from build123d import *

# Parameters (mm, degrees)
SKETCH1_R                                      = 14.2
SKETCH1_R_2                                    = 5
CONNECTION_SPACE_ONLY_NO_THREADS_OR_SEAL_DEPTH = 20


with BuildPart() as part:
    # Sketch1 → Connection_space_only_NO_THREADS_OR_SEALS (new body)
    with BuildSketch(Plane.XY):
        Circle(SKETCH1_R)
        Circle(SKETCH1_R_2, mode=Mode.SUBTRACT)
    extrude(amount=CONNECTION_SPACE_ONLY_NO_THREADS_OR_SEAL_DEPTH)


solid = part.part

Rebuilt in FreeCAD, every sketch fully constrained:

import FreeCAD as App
import Part
import Sketcher
from FreeCAD import Vector

doc = App.newDocument("Part")
body = doc.addObject("PartDesign::Body", "Body")

sketch1 = body.newObject("Sketcher::SketchObject", "Sketch")
sketch1.AttachmentSupport = (doc.getObject("XY_Plane"), [""])
sketch1.MapMode = "FlatFace"
sketch1.addGeometry(Part.Circle(Vector(0, 0, 0), Vector(0, 0, 1), 14.2), False)
sketch1.addGeometry(Part.Circle(Vector(0, 0, 0), Vector(0, 0, 1), 5), False)
sketch1.addConstraint(Sketcher.Constraint("Coincident", 0, 3, -1, 1))
sketch1.addConstraint(Sketcher.Constraint("Coincident", 1, 3, -1, 1))
sketch1.addConstraint(Sketcher.Constraint("Diameter", 1, 10.0))
sketch1.addConstraint(Sketcher.Constraint("Diameter", 0, 28.4))
pad1 = body.newObject("PartDesign::Pad", "Pad")
pad1.Profile = sketch1
pad1.Length = 20

doc.recompute()
